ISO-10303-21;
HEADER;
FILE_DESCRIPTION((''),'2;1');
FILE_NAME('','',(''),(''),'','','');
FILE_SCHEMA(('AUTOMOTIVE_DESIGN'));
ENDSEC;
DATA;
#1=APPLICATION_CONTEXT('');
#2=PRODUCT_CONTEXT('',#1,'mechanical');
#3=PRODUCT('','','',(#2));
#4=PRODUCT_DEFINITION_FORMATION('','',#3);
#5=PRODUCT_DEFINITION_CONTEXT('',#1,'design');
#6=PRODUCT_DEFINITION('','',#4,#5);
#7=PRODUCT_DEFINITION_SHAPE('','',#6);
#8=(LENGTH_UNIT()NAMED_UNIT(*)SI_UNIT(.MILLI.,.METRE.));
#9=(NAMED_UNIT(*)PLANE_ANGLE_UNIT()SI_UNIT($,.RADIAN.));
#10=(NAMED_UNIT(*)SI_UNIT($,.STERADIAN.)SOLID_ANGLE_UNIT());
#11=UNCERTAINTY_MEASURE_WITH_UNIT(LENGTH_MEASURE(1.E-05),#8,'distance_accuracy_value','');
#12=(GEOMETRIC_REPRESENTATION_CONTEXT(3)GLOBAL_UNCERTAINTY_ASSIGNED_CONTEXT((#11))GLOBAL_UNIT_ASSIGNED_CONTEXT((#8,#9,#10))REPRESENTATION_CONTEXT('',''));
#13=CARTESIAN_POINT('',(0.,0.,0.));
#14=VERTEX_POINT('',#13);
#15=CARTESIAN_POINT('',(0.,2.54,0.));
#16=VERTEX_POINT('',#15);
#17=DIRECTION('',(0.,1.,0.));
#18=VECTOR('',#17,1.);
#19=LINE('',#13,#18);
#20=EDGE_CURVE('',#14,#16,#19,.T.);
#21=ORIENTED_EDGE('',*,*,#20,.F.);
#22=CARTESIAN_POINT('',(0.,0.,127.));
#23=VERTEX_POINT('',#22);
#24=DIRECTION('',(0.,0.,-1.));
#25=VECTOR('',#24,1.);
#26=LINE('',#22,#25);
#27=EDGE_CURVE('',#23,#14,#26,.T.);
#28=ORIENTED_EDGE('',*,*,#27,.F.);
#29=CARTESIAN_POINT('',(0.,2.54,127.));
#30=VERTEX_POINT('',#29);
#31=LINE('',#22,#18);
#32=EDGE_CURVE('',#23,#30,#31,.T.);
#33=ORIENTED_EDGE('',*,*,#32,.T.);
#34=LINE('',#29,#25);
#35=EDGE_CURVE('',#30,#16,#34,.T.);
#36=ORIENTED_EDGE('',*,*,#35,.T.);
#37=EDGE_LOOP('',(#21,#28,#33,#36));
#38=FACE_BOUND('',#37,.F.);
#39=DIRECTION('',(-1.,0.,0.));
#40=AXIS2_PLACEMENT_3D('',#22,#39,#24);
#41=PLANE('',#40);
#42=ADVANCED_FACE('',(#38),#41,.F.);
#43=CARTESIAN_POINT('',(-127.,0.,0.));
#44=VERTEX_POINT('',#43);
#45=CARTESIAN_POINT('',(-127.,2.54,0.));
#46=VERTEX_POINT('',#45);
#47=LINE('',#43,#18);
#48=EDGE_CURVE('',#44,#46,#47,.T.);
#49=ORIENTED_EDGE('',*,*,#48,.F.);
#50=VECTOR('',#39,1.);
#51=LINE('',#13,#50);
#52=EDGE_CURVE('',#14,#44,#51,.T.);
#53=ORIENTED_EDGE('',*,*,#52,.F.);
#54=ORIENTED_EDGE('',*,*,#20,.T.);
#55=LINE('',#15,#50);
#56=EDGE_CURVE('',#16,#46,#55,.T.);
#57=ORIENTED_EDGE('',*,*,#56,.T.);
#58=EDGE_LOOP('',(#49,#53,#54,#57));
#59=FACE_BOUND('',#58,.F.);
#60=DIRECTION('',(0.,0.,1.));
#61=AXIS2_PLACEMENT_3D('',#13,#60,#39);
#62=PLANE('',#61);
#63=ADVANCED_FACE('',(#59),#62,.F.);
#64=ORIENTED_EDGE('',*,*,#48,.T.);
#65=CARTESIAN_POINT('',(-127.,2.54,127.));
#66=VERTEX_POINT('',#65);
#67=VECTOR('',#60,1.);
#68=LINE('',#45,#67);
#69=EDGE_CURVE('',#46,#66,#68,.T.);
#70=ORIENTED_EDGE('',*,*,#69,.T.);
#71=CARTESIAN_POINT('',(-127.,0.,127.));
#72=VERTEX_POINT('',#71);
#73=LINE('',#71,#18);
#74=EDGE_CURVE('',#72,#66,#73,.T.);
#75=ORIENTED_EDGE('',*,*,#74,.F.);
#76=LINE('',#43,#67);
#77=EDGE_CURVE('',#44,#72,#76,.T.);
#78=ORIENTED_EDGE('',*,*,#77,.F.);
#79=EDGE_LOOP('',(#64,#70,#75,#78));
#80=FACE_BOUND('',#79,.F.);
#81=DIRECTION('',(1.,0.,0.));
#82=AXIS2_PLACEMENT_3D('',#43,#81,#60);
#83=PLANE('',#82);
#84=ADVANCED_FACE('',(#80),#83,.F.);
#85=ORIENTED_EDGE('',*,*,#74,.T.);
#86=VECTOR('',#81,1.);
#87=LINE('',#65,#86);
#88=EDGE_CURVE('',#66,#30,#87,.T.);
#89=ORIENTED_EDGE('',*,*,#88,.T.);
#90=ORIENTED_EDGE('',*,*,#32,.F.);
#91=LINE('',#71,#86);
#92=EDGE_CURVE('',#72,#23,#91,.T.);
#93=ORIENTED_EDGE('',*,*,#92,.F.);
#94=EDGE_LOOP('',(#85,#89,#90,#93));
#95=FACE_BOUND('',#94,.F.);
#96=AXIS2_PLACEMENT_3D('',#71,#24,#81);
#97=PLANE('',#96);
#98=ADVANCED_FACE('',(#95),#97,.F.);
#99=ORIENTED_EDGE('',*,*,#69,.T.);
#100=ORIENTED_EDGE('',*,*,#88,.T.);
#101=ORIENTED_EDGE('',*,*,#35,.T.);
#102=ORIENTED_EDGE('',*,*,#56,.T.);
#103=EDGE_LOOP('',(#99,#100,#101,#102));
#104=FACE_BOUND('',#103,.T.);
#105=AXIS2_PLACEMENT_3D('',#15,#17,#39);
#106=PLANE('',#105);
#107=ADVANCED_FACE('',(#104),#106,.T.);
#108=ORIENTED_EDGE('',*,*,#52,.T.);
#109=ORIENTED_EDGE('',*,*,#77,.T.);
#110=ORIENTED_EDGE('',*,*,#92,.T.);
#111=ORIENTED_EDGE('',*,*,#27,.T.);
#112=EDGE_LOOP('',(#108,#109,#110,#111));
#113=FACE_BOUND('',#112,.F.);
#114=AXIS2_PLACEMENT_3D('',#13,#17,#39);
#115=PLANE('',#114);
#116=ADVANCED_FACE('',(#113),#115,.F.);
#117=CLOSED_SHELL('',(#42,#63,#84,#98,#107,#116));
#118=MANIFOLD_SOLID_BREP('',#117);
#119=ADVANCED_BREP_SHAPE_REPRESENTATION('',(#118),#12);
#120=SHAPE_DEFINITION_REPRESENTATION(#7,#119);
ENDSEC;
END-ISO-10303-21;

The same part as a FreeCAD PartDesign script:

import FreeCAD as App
import Part
import Sketcher
Q = App.Units.Quantity

doc = App.newDocument("Part")
params = doc.addObject("Spreadsheet::Sheet", "Params")
for row, (alias, value) in enumerate([
    ("sketch1_width", "5 in"),
    ("pad1_length", "0.1 in"),
], start=1):
    params.set(f"A{row}", alias)
    params.set(f"B{row}", "=" + value)
    params.setAlias(f"B{row}", alias)

body = doc.addObject("PartDesign::Body", "Body")

# Sketch on XZ plane
sketch1 = doc.addObject("Sketcher::SketchObject", "Sketch")
body.addObject(sketch1)
sketch1.AttachmentSupport = (doc.XZ_Plane, [""])
sketch1.MapMode = "FlatFace"
sketch1.addGeometry(Part.LineSegment(App.Vector(0, 127, 0), App.Vector(0, 0, 0)), False)
sketch1.addGeometry(Part.LineSegment(App.Vector(0, 0, 0), App.Vector(-127, 0, 0)), False)
sketch1.addGeometry(Part.LineSegment(App.Vector(-127, 0, 0), App.Vector(-127, 127, 0)), False)
sketch1.addGeometry(Part.LineSegment(App.Vector(-127, 127, 0), App.Vector(0, 127, 0)), False)
sketch1.addConstraint(Sketcher.Constraint("Coincident", 0, 2, 1, 1))
sketch1.addConstraint(Sketcher.Constraint("Coincident", 1, 2, 2, 1))
sketch1.addConstraint(Sketcher.Constraint("Coincident", 2, 2, 3, 1))
sketch1.addConstraint(Sketcher.Constraint("Coincident", 3, 2, 0, 1))
sketch1.addConstraint(Sketcher.Constraint("Vertical", 0))
sketch1.addConstraint(Sketcher.Constraint("Horizontal", 1))
sketch1.addConstraint(Sketcher.Constraint("Vertical", 2))
sketch1.addConstraint(Sketcher.Constraint("Horizontal", 3))
sketch1.addConstraint(Sketcher.Constraint("Coincident", 0, 2, -1, 1))
sketch1.addConstraint(Sketcher.Constraint("Equal", 3, 0))
sketch1.addConstraint(Sketcher.Constraint("DistanceX", 1, 2, 1, 1, Q("5 in")))
sketch1.setExpression("Constraints[10]", "Params.sketch1_width")
pad1 = doc.addObject("PartDesign::Pad", "Pad")
body.addObject(pad1)
pad1.Profile = sketch1
pad1.setExpression("Length", "Params.pad1_length")
pad1.Reversed = True

doc.recompute()
